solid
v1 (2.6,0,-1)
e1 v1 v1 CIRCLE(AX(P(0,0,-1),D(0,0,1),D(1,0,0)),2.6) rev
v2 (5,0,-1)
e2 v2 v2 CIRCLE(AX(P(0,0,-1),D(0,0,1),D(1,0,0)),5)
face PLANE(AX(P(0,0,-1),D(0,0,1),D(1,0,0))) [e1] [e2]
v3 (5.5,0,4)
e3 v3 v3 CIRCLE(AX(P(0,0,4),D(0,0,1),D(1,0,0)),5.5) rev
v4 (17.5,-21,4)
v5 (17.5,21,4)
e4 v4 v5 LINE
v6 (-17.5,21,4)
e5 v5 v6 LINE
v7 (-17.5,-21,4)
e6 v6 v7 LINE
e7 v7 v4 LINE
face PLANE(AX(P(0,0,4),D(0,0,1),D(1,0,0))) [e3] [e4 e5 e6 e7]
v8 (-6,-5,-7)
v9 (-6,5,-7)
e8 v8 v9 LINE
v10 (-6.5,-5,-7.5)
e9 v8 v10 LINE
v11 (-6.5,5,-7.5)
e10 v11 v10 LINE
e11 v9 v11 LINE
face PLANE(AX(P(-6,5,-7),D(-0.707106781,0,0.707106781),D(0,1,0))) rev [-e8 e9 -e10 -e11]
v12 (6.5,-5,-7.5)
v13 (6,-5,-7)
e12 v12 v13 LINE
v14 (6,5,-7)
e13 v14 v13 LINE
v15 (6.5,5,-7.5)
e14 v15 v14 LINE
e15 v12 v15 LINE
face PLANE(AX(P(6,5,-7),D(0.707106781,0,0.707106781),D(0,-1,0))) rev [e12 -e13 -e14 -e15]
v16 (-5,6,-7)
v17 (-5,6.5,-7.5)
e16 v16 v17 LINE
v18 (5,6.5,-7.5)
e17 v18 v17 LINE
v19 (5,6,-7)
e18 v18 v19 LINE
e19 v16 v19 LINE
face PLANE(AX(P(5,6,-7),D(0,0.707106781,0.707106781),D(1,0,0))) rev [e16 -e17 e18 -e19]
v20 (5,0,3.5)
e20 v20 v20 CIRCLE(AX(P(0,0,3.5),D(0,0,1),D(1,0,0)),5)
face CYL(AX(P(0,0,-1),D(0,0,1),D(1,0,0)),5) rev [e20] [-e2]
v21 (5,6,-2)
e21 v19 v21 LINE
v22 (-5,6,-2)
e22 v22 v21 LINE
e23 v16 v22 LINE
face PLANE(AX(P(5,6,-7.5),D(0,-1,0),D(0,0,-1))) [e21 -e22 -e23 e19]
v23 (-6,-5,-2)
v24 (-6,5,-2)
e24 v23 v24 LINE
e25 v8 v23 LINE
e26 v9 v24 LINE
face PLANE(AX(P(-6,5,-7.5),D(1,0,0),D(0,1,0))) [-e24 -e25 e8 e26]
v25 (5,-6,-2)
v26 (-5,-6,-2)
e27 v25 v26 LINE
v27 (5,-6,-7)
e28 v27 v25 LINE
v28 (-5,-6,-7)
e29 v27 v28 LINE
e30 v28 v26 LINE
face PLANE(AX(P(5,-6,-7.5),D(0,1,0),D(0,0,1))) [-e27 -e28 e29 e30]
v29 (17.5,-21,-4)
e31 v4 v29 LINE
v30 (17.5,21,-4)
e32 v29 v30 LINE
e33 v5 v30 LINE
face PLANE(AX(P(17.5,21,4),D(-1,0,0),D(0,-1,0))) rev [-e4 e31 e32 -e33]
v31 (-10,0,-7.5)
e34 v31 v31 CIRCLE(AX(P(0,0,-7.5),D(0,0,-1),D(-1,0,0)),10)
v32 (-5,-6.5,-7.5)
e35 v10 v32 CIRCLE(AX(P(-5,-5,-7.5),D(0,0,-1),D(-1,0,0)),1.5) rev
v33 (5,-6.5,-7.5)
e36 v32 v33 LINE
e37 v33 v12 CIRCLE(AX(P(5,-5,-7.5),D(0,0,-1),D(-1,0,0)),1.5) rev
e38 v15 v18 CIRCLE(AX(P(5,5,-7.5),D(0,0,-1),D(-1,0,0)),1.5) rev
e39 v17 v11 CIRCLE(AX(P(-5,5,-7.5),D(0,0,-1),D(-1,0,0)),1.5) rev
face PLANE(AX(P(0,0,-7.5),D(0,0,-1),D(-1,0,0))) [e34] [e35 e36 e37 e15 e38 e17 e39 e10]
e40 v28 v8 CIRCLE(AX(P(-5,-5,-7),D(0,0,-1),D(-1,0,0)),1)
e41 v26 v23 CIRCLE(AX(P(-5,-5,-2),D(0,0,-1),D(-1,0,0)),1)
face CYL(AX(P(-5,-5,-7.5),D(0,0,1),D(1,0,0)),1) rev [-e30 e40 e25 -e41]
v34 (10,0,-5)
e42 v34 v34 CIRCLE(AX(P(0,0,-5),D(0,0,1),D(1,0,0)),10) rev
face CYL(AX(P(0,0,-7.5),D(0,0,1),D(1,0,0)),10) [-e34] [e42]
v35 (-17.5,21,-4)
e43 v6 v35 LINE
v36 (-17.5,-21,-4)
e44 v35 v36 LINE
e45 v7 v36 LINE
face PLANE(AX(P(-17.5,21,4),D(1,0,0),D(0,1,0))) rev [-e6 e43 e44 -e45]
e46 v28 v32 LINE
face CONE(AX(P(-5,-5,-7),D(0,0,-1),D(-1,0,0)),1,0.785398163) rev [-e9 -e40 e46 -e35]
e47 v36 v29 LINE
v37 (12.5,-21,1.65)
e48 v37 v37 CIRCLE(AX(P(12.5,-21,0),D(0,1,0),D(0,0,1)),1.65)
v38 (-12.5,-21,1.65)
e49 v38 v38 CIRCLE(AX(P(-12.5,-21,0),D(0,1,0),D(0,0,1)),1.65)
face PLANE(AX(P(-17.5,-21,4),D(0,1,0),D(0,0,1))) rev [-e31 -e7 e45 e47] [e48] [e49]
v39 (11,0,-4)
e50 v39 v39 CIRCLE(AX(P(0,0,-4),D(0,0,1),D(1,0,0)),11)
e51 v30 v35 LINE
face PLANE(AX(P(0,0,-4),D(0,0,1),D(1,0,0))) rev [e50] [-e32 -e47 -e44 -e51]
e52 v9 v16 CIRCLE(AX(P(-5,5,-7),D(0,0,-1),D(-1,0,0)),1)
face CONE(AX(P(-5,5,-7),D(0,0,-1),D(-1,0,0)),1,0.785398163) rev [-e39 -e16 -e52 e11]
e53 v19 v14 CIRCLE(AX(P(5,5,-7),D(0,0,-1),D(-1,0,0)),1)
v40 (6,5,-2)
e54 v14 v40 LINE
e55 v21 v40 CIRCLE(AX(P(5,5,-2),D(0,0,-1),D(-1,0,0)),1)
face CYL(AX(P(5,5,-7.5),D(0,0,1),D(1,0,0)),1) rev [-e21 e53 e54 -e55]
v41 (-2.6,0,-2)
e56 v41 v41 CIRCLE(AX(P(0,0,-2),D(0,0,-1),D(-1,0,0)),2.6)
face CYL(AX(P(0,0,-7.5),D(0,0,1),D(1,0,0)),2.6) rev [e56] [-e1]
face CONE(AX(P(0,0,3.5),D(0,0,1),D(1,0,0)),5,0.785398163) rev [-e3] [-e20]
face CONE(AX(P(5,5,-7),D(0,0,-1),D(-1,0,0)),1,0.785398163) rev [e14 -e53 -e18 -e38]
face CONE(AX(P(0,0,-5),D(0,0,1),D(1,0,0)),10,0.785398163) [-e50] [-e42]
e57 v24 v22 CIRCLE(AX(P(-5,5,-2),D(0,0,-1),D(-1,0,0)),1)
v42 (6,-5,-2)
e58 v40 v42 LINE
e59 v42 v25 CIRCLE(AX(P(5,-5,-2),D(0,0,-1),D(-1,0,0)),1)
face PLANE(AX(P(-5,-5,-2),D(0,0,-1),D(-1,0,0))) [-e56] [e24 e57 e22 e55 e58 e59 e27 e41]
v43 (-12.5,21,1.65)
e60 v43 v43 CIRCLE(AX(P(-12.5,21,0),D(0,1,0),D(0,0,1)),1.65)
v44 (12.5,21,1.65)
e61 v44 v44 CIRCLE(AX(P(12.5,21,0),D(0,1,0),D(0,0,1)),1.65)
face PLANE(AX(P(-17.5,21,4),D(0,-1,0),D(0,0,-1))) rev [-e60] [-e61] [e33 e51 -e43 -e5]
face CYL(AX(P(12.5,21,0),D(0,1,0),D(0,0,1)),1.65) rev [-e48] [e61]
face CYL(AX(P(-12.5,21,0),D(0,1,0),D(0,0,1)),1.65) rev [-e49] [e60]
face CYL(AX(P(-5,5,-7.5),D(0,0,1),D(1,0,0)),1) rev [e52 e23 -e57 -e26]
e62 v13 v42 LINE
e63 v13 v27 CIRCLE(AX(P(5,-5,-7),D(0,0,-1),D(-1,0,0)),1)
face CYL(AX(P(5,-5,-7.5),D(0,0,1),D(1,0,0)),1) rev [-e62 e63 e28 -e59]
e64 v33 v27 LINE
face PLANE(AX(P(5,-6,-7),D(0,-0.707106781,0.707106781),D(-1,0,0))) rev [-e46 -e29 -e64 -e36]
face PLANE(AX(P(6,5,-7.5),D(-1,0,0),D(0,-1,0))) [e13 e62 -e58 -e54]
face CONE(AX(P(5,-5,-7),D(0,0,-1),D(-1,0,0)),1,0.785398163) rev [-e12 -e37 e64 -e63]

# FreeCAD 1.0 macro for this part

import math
import FreeCAD as App
import Part
import Sketcher
Q = App.Units.Quantity


def edges_at(feature, points):
    """Names of the edges that pass closest to the given points."""
    edges = feature.Shape.Edges
    near = lambda p: min(range(len(edges)), key=lambda i: edges[i].distToShape(Part.Vertex(*p))[0])
    return sorted({f"Edge{near(p) + 1}" for p in points})

doc = App.newDocument("Part")
params = doc.addObject("Spreadsheet::Sheet", "Params")
for row, (alias, value) in enumerate([
    ("sketch1_width", "35 mm"),
    ("sketch1_height", "42 mm"),
    ("pad1_length", "8 mm"),
    ("sketch2_diameter", "20 mm"),
    ("sketch2_radius", "1 mm"),
    ("sketch2_width", "10 mm"),
    ("pad2_length", "3.5 mm"),
    ("sketch3_radius", "1 mm"),
    ("sketch3_width", "10 mm"),
    ("pocket1_length", "2 mm"),
    ("sketch4_diameter", "5.2 mm"),
    ("sketch5_diameter", "10 mm"),
    ("pocket3_length", "5 mm"),
    ("chamfer_size", "0.5 mm"),
    ("chamfer2_size", "0.5 mm"),
    ("chamfer3_size", "1 mm"),
    ("sketch6_diameter", "3.3 mm"),
    ("hole_diameter", "3.3 mm"),
], start=1):
    params.set(f"A{row}", alias)
    params.set(f"B{row}", "=" + value)
    params.setAlias(f"B{row}", alias)

body = doc.addObject("PartDesign::Body", "Body")

# Sketch on XY plane
sketch1 = doc.addObject("Sketcher::SketchObject", "Sketch")
body.addObject(sketch1)
sketch1.AttachmentSupport = (doc.XY_Plane, [""])
sketch1.MapMode = "FlatFace"
sketch1.addGeometry(Part.LineSegment(App.Vector(-18, 21, 0), App.Vector(-18, -21, 0)), False)
sketch1.addGeometry(Part.LineSegment(App.Vector(-18, -21, 0), App.Vector(18, -21, 0)), False)
sketch1.addGeometry(Part.LineSegment(App.Vector(18, -21, 0), App.Vector(18, 21, 0)), False)
sketch1.addGeometry(Part.LineSegment(App.Vector(18, 21, 0), App.Vector(-18, 21, 0)), False)
sketch1.addConstraint(Sketcher.Constraint("Coincident", 0, 2, 1, 1))
sketch1.addConstraint(Sketcher.Constraint("Coincident", 1, 2, 2, 1))
sketch1.addConstraint(Sketcher.Constraint("Coincident", 2, 2, 3, 1))
sketch1.addConstraint(Sketcher.Constraint("Coincident", 3, 2, 0, 1))
sketch1.addConstraint(Sketcher.Constraint("Vertical", 0))
sketch1.addConstraint(Sketcher.Constraint("Horizontal", 1))
sketch1.addConstraint(Sketcher.Constraint("Vertical", 2))
sketch1.addConstraint(Sketcher.Constraint("Horizontal", 3))
sketch1.addConstraint(Sketcher.Constraint("Symmetric", 0, 2, 2, 2, -1, 1))
sketch1.addConstraint(Sketcher.Constraint("DistanceX", 1, 1, 1, 2, Q("35 mm")))
sketch1.addConstraint(Sketcher.Constraint("DistanceY", 0, 2, 0, 1, Q("42 mm")))
sketch1.setExpression("Constraints[9]", "Params.sketch1_width")
sketch1.setExpression("Constraints[10]", "Params.sketch1_height")
pad1 = doc.addObject("PartDesign::Pad", "Pad")
body.addObject(pad1)
pad1.Profile = sketch1
pad1.setExpression("Length", "Params.pad1_length")
pad1.Midplane = True

# Sketch on XY plane
sketch2 = doc.addObject("Sketcher::SketchObject", "Sketch001")
body.addObject(sketch2)
sketch2.AttachmentSupport = (doc.XY_Plane, [""])
sketch2.MapMode = "FlatFace"
sketch2.AttachmentOffset = App.Placement(App.Vector(0, 0, -4), App.Rotation())
sketch2.addGeometry(Part.Circle(App.Vector(0, 0, 0), App.Vector(0, 0, 1), 10), False)
sketch2.addGeometry(Part.ArcOfCircle(Part.Circle(App.Vector(5, 5, 0), App.Vector(0, 0, 1), 1), math.radians(0), math.radians(90)), False)
sketch2.addGeometry(Part.LineSegment(App.Vector(5, 6, 0), App.Vector(-5, 6, 0)), False)
sketch2.addGeometry(Part.ArcOfCircle(Part.Circle(App.Vector(-5, 5, 0), App.Vector(0, 0, 1), 1), math.radians(90), math.radians(180)), False)
sketch2.addGeometry(Part.LineSegment(App.Vector(-6, 5, 0), App.Vector(-6, -5, 0)), False)
sketch2.addGeometry(Part.ArcOfCircle(Part.Circle(App.Vector(-5, -5, 0), App.Vector(0, 0, 1), 1), math.radians(-180), math.radians(-90)), False)
sketch2.addGeometry(Part.LineSegment(App.Vector(-5, -6, 0), App.Vector(5, -6, 0)), False)
sketch2.addGeometry(Part.ArcOfCircle(Part.Circle(App.Vector(5, -5, 0), App.Vector(0, 0, 1), 1), math.radians(-90), math.radians(0)), False)
sketch2.addGeometry(Part.LineSegment(App.Vector(6, -5, 0), App.Vector(6, 5, 0)), False)
sketch2.addConstraint(Sketcher.Constraint("Tangent", 1, 2, 2, 1))
sketch2.addConstraint(Sketcher.Constraint("Tangent", 2, 2, 3, 1))
sketch2.addConstraint(Sketcher.Constraint("Tangent", 3, 2, 4, 1))
sketch2.addConstraint(Sketcher.Constraint("Tangent", 4, 2, 5, 1))
sketch2.addConstraint(Sketcher.Constraint("Tangent", 5, 2, 6, 1))
sketch2.addConstraint(Sketcher.Constraint("Tangent", 6, 2, 7, 1))
sketch2.addConstraint(Sketcher.Constraint("Tangent", 7, 2, 8, 1))
sketch2.addConstraint(Sketcher.Constraint("Tangent", 8, 2, 1, 1))
sketch2.addConstraint(Sketcher.Constraint("Horizontal", 2))
sketch2.addConstraint(Sketcher.Constraint("Vertical", 4))
sketch2.addConstraint(Sketcher.Constraint("Horizontal", 6))
sketch2.addConstraint(Sketcher.Constraint("Vertical", 8))
sketch2.addConstraint(Sketcher.Constraint("Coincident", 0, 3, -1, 1))
sketch2.addConstraint(Sketcher.Constraint("Equal", 1, 3))
sketch2.addConstraint(Sketcher.Constraint("Equal", 3, 5))
sketch2.addConstraint(Sketcher.Constraint("Equal", 5, 7))
sketch2.addConstraint(Sketcher.Constraint("Symmetric", 1, 3, 5, 3, -1, 1))
sketch2.addConstraint(Sketcher.Constraint("Equal", 6, 4))
sketch2.addConstraint(Sketcher.Constraint("Diameter", 0, Q("20 mm")))
sketch2.addConstraint(Sketcher.Constraint("Radius", 1, Q("1 mm")))
sketch2.addConstraint(Sketcher.Constraint("DistanceX", 2, 2, 2, 1, Q("10 mm")))
sketch2.setExpression("Constraints[18]", "Params.sketch2_diameter")
sketch2.setExpression("Constraints[19]", "Params.sketch2_radius")
sketch2.setExpression("Constraints[20]", "Params.sketch2_width")
pad2 = doc.addObject("PartDesign::Pad", "Pad001")
body.addObject(pad2)
pad2.Profile = sketch2
pad2.setExpression("Length", "Params.pad2_length")
pad2.Reversed = True

# Sketch on XY plane
sketch3 = doc.addObject("Sketcher::SketchObject", "Sketch002")
body.addObject(sketch3)
sketch3.AttachmentSupport = (doc.XY_Plane, [""])
sketch3.MapMode = "FlatFace"
sketch3.AttachmentOffset = App.Placement(App.Vector(0, 0, -4), App.Rotation())
sketch3.addGeometry(Part.LineSegment(App.Vector(-6, -5, 0), App.Vector(-6, 5, 0)), False)
sketch3.addGeometry(Part.ArcOfCircle(Part.Circle(App.Vector(-5, 5, 0), App.Vector(0, 0, 1), 1), math.radians(90), math.radians(180)), False)
sketch3.addGeometry(Part.LineSegment(App.Vector(-5, 6, 0), App.Vector(5, 6, 0)), False)
sketch3.addGeometry(Part.ArcOfCircle(Part.Circle(App.Vector(5, 5, 0), App.Vector(0, 0, 1), 1), math.radians(0), math.radians(90)), False)
sketch3.addGeometry(Part.LineSegment(App.Vector(6, 5, 0), App.Vector(6, -5, 0)), False)
sketch3.addGeometry(Part.ArcOfCircle(Part.Circle(App.Vector(5, -5, 0), App.Vector(0, 0, 1), 1), math.radians(-90), math.radians(0)), False)
sketch3.addGeometry(Part.LineSegment(App.Vector(5, -6, 0), App.Vector(-5, -6, 0)), False)
sketch3.addGeometry(Part.ArcOfCircle(Part.Circle(App.Vector(-5, -5, 0), App.Vector(0, 0, 1), 1), math.radians(-180), math.radians(-90)), False)
sketch3.addConstraint(Sketcher.Constraint("Tangent", 0, 2, 1, 2))
sketch3.addConstraint(Sketcher.Constraint("Tangent", 1, 1, 2, 1))
sketch3.addConstraint(Sketcher.Constraint("Tangent", 2, 2, 3, 2))
sketch3.addConstraint(Sketcher.Constraint("Tangent", 3, 1, 4, 1))
sketch3.addConstraint(Sketcher.Constraint("Tangent", 4, 2, 5, 2))
sketch3.addConstraint(Sketcher.Constraint("Tangent", 5, 1, 6, 1))
sketch3.addConstraint(Sketcher.Constraint("Tangent", 6, 2, 7, 2))
sketch3.addConstraint(Sketcher.Constraint("Tangent", 7, 1, 0, 1))
sketch3.addConstraint(Sketcher.Constraint("Vertical", 0))
sketch3.addConstraint(Sketcher.Constraint("Horizontal", 2))
sketch3.addConstraint(Sketcher.Constraint("Vertical", 4))
sketch3.addConstraint(Sketcher.Constraint("Horizontal", 6))
sketch3.addConstraint(Sketcher.Constraint("Equal", 1, 3))
sketch3.addConstraint(Sketcher.Constraint("Equal", 3, 5))
sketch3.addConstraint(Sketcher.Constraint("Equal", 5, 7))
sketch3.addConstraint(Sketcher.Constraint("Symmetric", 1, 3, 5, 3, -1, 1))
sketch3.addConstraint(Sketcher.Constraint("Equal", 6, 0))
sketch3.addConstraint(Sketcher.Constraint("Radius", 1, Q("1 mm")))
sketch3.addConstraint(Sketcher.Constraint("DistanceX", 2, 1, 2, 2, Q("10 mm")))
sketch3.setExpression("Constraints[17]", "Params.sketch3_radius")
sketch3.setExpression("Constraints[18]", "Params.sketch3_width")
pocket1 = doc.addObject("PartDesign::Pocket", "Pocket")
body.addObject(pocket1)
pocket1.Profile = sketch3
pocket1.setExpression("Length", "Params.pocket1_length")
pocket1.Reversed = True

# Sketch on XY plane
sketch4 = doc.addObject("Sketcher::SketchObject", "Sketch003")
body.addObject(sketch4)
sketch4.AttachmentSupport = (doc.XY_Plane, [""])
sketch4.MapMode = "FlatFace"
sketch4.AttachmentOffset = App.Placement(App.Vector(0, 0, 4), App.Rotation())
sketch4.addGeometry(Part.Circle(App.Vector(0, 0, 0), App.Vector(0, 0, 1), 2.6), False)
sketch4.addConstraint(Sketcher.Constraint("Coincident", 0, 3, -1, 1))
sketch4.addConstraint(Sketcher.Constraint("Diameter", 0, Q("5.2 mm")))
sketch4.setExpression("Constraints[1]", "Params.sketch4_diameter")
pocket2 = doc.addObject("PartDesign::Pocket", "Pocket001")
body.addObject(pocket2)
pocket2.Profile = sketch4
pocket2.Type = "ThroughAll"

# Sketch on XY plane
sketch5 = doc.addObject("Sketcher::SketchObject", "Sketch004")
body.addObject(sketch5)
sketch5.AttachmentSupport = (doc.XY_Plane, [""])
sketch5.MapMode = "FlatFace"
sketch5.AttachmentOffset = App.Placement(App.Vector(0, 0, 4), App.Rotation())
sketch5.addGeometry(Part.Circle(App.Vector(0, 0, 0), App.Vector(0, 0, 1), 5), False)
sketch5.addConstraint(Sketcher.Constraint("Coincident", 0, 3, -1, 1))
sketch5.addConstraint(Sketcher.Constraint("Diameter", 0, Q("10 mm")))
sketch5.setExpression("Constraints[1]", "Params.sketch5_diameter")
pocket3 = doc.addObject("PartDesign::Pocket", "Pocket002")
body.addObject(pocket3)
pocket3.Profile = sketch5
pocket3.setExpression("Length", "Params.pocket3_length")
doc.recompute()

chamfer = doc.addObject("PartDesign::Chamfer", "Chamfer")
body.addObject(chamfer)
chamfer.Base = (pocket3, edges_at(pocket3, [
    (-5.707, 5.707, -7.5),
    (0, 6, -7.5),
    (5.707, 5.707, -7.5),
    (6, 0, -7.5),
    (5.707, -5.707, -7.5),
    (0, -6, -7.5),
    (-5.707, -5.707, -7.5),
    (-6, 0, -7.5),
]))
chamfer.setExpression("Size", "Params.chamfer_size")
doc.recompute()

chamfer2 = doc.addObject("PartDesign::Chamfer", "Chamfer001")
body.addObject(chamfer2)
chamfer2.Base = (chamfer, edges_at(chamfer, [(-5, 0, 4)]))
chamfer2.setExpression("Size", "Params.chamfer2_size")
doc.recompute()

chamfer3 = doc.addObject("PartDesign::Chamfer", "Chamfer002")
body.addObject(chamfer3)
chamfer3.Base = (chamfer2, edges_at(chamfer2, [(10, 0, -4)]))
chamfer3.setExpression("Size", "Params.chamfer3_size")

# Sketch on XZ plane
sketch6 = doc.addObject("Sketcher::SketchObject", "Sketch005")
body.addObject(sketch6)
sketch6.AttachmentSupport = (doc.XZ_Plane, [""])
sketch6.MapMode = "FlatFace"
sketch6.AttachmentOffset = App.Placement(App.Vector(0, 0, -21), App.Rotation())
sketch6.addGeometry(Part.Circle(App.Vector(-12.5, 0, 0), App.Vector(0, 0, 1), 1.6), False)
sketch6.addGeometry(Part.Circle(App.Vector(12.5, 0, 0), App.Vector(0, 0, 1), 1.6), False)
sketch6.addConstraint(Sketcher.Constraint("Equal", 0, 1))
sketch6.addConstraint(Sketcher.Constraint("Symmetric", 0, 3, 1, 3, -1, 1))
sketch6.addConstraint(Sketcher.Constraint("PointOnObject", 0, 3, -1))
sketch6.addConstraint(Sketcher.Constraint("Diameter", 0, Q("3.3 mm")))
sketch6.addConstraint(Sketcher.Constraint("DistanceX", 0, 3, 1, 3, Q("25 mm")))
sketch6.setExpression("Constraints[3]", "Params.sketch6_diameter")
doc.recompute()
hole = doc.addObject("PartDesign::Hole", "Hole")
body.addObject(hole)
hole.Profile = sketch6
hole.ThreadType = "None"
hole.setExpression("Diameter", "Params.hole_diameter")
hole.DepthType = "ThroughAll"
hole.Reversed = True

doc.recompute()
